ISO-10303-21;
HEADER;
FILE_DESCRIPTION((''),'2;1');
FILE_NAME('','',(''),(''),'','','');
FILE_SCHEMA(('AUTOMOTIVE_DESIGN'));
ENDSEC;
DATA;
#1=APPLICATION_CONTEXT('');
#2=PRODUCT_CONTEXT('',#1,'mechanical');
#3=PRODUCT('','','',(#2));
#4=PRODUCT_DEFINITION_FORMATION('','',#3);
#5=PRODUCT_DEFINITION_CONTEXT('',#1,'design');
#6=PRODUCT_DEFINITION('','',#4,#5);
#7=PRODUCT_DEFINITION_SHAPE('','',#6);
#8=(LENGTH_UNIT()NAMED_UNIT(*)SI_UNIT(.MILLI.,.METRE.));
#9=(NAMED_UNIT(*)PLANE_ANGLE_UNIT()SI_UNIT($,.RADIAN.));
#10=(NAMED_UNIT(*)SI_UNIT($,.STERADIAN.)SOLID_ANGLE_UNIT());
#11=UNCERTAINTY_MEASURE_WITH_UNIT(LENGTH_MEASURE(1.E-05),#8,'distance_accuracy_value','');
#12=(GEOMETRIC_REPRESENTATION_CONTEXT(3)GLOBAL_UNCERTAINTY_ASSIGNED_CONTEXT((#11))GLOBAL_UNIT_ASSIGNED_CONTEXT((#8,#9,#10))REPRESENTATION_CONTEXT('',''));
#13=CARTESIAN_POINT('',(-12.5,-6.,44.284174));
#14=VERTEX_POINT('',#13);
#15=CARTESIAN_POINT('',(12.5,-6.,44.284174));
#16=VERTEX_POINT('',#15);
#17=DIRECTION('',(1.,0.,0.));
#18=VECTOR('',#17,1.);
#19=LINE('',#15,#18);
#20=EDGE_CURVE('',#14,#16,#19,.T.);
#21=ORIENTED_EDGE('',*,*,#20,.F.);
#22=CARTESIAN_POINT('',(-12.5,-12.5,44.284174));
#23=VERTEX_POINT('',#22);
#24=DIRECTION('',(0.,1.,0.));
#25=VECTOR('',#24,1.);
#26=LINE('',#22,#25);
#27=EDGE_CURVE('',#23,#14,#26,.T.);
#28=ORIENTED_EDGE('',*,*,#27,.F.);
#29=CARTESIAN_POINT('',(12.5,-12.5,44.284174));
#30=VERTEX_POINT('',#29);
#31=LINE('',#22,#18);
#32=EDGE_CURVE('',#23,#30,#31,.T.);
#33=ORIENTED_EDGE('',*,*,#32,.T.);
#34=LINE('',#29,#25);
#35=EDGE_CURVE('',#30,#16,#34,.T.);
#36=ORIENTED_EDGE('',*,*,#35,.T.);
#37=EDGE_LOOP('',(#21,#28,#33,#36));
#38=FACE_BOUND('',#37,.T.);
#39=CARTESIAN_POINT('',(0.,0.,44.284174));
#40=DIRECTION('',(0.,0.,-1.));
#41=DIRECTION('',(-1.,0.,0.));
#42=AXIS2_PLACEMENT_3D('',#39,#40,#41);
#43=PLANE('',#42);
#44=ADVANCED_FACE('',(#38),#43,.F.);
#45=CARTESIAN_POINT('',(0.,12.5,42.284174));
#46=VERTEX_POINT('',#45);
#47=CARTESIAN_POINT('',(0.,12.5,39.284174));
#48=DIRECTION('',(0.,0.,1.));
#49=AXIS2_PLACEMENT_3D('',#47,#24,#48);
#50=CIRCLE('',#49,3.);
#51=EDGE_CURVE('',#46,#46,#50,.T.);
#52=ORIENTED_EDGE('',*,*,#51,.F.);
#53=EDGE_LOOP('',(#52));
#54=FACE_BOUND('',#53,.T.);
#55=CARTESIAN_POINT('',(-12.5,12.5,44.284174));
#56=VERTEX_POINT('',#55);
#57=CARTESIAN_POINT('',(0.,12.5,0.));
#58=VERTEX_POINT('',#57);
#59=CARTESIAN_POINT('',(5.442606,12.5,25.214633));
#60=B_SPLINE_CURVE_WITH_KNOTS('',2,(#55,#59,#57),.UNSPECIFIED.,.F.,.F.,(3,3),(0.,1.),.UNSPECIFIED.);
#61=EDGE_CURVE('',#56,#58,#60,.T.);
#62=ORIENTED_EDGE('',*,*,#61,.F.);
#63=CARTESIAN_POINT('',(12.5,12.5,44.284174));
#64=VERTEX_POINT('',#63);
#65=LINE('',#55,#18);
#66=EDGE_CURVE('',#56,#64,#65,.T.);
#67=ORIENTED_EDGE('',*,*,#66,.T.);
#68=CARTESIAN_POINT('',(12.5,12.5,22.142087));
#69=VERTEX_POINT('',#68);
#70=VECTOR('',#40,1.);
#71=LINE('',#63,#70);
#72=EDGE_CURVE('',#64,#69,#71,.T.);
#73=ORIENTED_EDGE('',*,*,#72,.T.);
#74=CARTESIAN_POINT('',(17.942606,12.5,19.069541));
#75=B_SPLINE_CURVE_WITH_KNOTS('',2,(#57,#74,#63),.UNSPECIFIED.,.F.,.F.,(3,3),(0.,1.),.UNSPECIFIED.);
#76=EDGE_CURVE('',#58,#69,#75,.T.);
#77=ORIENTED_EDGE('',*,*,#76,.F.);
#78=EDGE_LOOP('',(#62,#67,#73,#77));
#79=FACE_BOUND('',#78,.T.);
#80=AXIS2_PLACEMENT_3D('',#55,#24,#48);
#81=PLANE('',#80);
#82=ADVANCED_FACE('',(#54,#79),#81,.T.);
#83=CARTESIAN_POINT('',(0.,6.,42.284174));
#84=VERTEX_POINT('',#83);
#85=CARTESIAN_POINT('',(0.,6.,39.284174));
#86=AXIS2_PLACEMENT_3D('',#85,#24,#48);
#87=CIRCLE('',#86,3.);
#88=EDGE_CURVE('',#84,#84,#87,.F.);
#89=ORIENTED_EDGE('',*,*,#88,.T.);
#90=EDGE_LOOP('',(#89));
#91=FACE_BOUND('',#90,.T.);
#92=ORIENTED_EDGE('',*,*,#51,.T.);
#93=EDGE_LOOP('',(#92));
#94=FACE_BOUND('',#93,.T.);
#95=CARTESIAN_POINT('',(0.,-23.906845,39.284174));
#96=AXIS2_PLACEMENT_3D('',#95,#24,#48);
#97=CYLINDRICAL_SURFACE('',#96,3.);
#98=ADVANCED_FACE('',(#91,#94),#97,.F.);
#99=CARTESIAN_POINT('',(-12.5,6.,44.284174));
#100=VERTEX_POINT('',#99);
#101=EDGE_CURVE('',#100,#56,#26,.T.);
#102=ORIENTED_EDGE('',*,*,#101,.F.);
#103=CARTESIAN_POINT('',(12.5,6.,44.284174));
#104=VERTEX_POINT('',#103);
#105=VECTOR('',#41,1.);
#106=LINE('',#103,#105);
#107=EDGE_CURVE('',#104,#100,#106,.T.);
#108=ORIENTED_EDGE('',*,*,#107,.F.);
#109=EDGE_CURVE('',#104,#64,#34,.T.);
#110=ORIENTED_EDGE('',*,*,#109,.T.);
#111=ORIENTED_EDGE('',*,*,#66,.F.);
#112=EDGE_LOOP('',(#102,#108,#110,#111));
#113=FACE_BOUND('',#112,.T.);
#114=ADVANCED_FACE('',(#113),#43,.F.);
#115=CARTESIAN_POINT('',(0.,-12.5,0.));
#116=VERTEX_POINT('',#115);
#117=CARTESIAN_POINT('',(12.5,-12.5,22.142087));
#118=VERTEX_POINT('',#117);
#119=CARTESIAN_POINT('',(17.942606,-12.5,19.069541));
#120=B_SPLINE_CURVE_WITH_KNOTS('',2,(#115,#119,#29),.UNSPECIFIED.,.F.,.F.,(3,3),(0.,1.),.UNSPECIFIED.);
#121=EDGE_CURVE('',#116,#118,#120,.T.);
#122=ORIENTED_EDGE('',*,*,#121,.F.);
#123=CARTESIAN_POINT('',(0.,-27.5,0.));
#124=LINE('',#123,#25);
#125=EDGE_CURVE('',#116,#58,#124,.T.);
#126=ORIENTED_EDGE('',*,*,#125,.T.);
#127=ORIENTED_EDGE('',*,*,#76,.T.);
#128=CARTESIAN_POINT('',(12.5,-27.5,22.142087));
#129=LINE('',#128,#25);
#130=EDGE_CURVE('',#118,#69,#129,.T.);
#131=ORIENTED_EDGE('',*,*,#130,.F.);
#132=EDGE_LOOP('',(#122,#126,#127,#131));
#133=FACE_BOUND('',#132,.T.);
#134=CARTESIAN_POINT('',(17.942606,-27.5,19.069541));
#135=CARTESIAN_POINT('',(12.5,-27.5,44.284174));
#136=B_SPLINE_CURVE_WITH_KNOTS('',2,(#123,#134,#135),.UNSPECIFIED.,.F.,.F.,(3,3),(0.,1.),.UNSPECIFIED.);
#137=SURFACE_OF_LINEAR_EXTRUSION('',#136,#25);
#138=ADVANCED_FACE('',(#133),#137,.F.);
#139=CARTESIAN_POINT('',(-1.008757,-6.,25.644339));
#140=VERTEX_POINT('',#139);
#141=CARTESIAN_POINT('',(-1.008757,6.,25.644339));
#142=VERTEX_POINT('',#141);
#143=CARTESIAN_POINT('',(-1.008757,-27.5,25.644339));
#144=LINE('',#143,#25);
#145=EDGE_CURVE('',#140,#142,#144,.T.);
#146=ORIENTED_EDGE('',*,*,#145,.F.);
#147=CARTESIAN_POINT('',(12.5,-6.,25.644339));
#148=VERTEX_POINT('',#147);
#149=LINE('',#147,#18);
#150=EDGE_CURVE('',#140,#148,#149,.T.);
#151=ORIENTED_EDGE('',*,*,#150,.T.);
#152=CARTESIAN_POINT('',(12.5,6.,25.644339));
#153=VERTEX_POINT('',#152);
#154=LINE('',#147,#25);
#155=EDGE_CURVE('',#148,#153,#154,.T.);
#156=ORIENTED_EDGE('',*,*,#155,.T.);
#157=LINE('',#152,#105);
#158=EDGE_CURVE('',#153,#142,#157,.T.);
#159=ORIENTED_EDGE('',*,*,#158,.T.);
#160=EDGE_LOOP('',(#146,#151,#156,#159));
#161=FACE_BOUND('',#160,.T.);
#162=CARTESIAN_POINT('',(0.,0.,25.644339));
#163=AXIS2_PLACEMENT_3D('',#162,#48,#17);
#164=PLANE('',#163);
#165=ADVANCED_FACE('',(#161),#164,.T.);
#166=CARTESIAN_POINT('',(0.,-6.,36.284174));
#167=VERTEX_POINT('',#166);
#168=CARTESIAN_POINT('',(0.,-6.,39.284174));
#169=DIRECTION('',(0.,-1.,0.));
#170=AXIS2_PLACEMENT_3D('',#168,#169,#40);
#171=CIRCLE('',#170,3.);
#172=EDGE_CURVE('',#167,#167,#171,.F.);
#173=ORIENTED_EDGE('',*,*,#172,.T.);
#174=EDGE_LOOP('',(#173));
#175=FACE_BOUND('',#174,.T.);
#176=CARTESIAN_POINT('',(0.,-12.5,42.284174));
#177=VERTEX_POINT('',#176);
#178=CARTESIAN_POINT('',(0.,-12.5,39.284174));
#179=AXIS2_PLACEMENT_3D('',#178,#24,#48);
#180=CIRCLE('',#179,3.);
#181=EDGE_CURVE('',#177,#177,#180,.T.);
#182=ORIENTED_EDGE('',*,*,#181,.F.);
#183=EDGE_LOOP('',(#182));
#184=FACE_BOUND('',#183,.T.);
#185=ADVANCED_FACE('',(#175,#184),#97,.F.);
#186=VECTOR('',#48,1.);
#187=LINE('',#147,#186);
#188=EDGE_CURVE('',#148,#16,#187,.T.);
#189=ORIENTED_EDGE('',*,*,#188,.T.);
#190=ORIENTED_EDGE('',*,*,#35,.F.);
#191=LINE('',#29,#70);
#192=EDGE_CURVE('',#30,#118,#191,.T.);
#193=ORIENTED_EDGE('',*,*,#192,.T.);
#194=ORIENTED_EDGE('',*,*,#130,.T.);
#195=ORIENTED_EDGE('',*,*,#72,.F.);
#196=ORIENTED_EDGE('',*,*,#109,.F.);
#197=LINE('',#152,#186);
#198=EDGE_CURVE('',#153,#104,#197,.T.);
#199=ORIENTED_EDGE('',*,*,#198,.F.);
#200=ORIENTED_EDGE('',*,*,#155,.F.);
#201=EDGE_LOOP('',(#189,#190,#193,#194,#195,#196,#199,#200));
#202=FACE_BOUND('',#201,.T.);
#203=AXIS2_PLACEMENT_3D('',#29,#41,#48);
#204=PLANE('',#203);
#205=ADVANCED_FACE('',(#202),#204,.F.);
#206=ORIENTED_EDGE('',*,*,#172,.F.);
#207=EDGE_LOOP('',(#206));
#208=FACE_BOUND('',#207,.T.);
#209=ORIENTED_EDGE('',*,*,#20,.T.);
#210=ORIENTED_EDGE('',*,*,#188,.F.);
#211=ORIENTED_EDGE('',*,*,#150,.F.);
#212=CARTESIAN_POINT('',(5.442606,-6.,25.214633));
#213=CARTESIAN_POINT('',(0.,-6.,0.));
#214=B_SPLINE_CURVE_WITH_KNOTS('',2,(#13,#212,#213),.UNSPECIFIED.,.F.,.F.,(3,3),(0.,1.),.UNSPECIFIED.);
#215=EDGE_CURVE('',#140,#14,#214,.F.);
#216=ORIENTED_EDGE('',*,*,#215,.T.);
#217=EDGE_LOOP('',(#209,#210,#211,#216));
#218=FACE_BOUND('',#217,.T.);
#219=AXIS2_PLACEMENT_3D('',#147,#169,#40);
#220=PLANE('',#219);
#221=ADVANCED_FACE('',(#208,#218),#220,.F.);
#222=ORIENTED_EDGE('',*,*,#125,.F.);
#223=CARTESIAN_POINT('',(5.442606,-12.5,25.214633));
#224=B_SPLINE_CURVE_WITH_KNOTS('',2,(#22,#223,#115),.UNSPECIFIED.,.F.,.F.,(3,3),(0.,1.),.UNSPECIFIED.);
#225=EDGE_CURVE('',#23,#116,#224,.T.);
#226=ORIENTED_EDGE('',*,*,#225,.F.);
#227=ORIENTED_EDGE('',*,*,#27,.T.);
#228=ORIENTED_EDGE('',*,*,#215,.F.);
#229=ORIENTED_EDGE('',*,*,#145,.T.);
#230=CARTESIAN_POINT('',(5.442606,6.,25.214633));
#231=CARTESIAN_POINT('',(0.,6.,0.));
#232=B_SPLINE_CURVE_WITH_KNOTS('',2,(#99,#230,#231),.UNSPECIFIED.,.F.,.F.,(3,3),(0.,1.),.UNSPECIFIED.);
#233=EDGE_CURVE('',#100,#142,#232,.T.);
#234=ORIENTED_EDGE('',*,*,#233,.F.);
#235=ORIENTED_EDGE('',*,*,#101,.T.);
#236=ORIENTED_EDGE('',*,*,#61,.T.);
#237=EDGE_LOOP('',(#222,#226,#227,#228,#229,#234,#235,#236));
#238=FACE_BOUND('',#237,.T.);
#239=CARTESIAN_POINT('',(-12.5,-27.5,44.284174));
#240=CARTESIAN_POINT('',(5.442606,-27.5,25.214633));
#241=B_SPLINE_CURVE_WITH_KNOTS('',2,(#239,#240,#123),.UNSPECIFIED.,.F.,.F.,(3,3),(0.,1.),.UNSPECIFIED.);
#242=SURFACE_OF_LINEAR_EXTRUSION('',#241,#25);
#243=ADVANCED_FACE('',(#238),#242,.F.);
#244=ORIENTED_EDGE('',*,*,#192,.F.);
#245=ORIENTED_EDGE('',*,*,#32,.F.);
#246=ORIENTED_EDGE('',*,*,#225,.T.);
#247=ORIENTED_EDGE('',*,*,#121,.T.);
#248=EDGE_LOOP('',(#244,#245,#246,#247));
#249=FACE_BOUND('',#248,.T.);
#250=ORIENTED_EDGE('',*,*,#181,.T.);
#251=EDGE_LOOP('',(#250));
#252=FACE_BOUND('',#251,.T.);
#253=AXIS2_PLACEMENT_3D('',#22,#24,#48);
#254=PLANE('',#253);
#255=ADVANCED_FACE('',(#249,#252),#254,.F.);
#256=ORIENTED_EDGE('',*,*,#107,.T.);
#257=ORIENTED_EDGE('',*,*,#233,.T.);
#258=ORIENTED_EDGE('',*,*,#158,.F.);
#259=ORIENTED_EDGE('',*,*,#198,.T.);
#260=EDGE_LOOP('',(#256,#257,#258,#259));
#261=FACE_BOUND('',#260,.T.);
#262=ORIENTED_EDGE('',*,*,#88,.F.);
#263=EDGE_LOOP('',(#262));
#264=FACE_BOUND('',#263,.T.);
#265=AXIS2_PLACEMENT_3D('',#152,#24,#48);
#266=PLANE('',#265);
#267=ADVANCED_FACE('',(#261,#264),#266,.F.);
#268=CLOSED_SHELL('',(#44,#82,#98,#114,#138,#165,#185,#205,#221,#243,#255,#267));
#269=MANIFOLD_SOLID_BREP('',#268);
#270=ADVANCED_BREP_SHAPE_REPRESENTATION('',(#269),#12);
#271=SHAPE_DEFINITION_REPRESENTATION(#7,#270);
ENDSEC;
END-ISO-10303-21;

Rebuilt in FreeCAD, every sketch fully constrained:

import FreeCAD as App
import Part
import Sketcher

V = App.Vector

doc = App.newDocument("Part")
body = doc.addObject("PartDesign::Body", "Body")

sketch1 = body.newObject("Sketcher::SketchObject", "Sketch")
sketch1.AttachmentSupport = (doc.getObject("XY_Plane"), [""])
sketch1.MapMode = "FlatFace"
sketch1.addGeometry([
    Part.LineSegment(V(-12, 12, 0), V(-12, -12, 0)),
    Part.LineSegment(V(-12, -12, 0), V(12, -12, 0)),
    Part.LineSegment(V(12, -12, 0), V(12, 12, 0)),
    Part.LineSegment(V(12, 12, 0), V(-12, 12, 0)),
], False)
sketch1.addConstraint([
    Sketcher.Constraint("Coincident", 0, 2, 1, 1),
    Sketcher.Constraint("Coincident", 1, 2, 2, 1),
    Sketcher.Constraint("Coincident", 2, 2, 3, 1),
    Sketcher.Constraint("Coincident", 3, 2, 0, 1),
    Sketcher.Constraint("Vertical", 0),
    Sketcher.Constraint("Horizontal", 1),
    Sketcher.Constraint("Vertical", 2),
    Sketcher.Constraint("Horizontal", 3),
    Sketcher.Constraint("Symmetric", 0, 2, 2, 2, -1, 1),
    Sketcher.Constraint("Equal", 3, 0),
    Sketcher.Constraint("DistanceX", 1, 1, 1, 2, 25.0),
])
pad1 = body.newObject("PartDesign::Pad", "Pad")
pad1.Profile = sketch1
pad1.Length = 44.284174

sketch2 = body.newObject("Sketcher::SketchObject", "Sketch001")
sketch2.AttachmentSupport = (doc.getObject("XZ_Plane"), [""])
sketch2.MapMode = "FlatFace"
sketch2.AttachmentOffset = App.Placement(V(0, 0, -12.5), App.Rotation())
sketch2.addGeometry(Part.Circle(V(0, 39.3, 0), V(0, 0, 1), 3), False)
sketch2.addConstraint([
    Sketcher.Constraint("PointOnObject", 0, 3, -2),
    Sketcher.Constraint("Diameter", 0, 6.0),
    Sketcher.Constraint("DistanceY", -1, 1, 0, 3, 39.284174),
])
pocket1 = body.newObject("PartDesign::Pocket", "Pocket")
pocket1.Profile = sketch2
pocket1.Length = 36.406845
pocket1.Reversed = True

sketch3 = body.newObject("Sketcher::SketchObject", "Sketch002")
sketch3.AttachmentSupport = (doc.getObject("XY_Plane"), [""])
sketch3.MapMode = "FlatFace"
sketch3.AttachmentOffset = App.Placement(V(0, 0, 44.284174), App.Rotation())
sketch3.addGeometry([
    Part.LineSegment(V(-12, 6, 0), V(-12, -6, 0)),
    Part.LineSegment(V(-12, -6, 0), V(12, -6, 0)),
    Part.LineSegment(V(12, -6, 0), V(12, 6, 0)),
    Part.LineSegment(V(12, 6, 0), V(-12, 6, 0)),
], False)
sketch3.addConstraint([
    Sketcher.Constraint("Coincident", 0, 2, 1, 1),
    Sketcher.Constraint("Coincident", 1, 2, 2, 1),
    Sketcher.Constraint("Coincident", 2, 2, 3, 1),
    Sketcher.Constraint("Coincident", 3, 2, 0, 1),
    Sketcher.Constraint("Vertical", 0),
    Sketcher.Constraint("Horizontal", 1),
    Sketcher.Constraint("Vertical", 2),
    Sketcher.Constraint("Horizontal", 3),
    Sketcher.Constraint("Symmetric", 0, 2, 2, 2, -1, 1),
    Sketcher.Constraint("DistanceX", 1, 1, 1, 2, 25.0),
    Sketcher.Constraint("DistanceY", 0, 2, 0, 1, 12.0),
])
pocket2 = body.newObject("PartDesign::Pocket", "Pocket001")
pocket2.Profile = sketch3
pocket2.Length = 18.639835

sketch4 = body.newObject("Sketcher::SketchObject", "Sketch003")
sketch4.AttachmentSupport = (doc.getObject("XZ_Plane"), [""])
sketch4.MapMode = "FlatFace"
sketch4.AttachmentOffset = App.Placement(V(0, 0, -12.5), App.Rotation())
sketch4.addGeometry([
    Part.LineSegment(V(5.705393, -41.461874, 0), V(-47.024859, 52.228317, 0)),
    Part.LineSegment(V(-47.024859, 52.228317, 0), V(-12.5, 44.284174, 0)),
    Part.BSplineCurve([V(0, 0, 0), V(5.442606, 25.214633, 0), V(-12.5, 44.284174, 0)], [3, 3], [0, 1], False, 2, [1, 1, 1], False),
    Part.BSplineCurve([V(0, 0, 0), V(17.942606, 19.069541, 0), V(12.5, 44.284174, 0)], [3, 3], [0, 1], False, 2, [1, 1, 1], False),
    Part.LineSegment(V(12.5, 44.284174, 0), V(28.831723, 24.155832, 0)),
    Part.LineSegment(V(28.831723, 24.155832, 0), V(5.705393, -41.461874, 0)),
], False)
sketch4.addConstraint([
    Sketcher.Constraint("Block", 2),
    Sketcher.Constraint("Block", 3),
    Sketcher.Constraint("Coincident", 0, 2, 1, 1),
    Sketcher.Constraint("Coincident", 1, 2, 2, 2),
    Sketcher.Constraint("Coincident", 3, 2, 4, 1),
    Sketcher.Constraint("Coincident", 4, 2, 5, 1),
    Sketcher.Constraint("Coincident", 5, 2, 0, 1),
    Sketcher.Constraint("Distance", 0, 107.50968),
    Sketcher.Constraint("DistanceX", 0, 2, -1, 1, 47.024859),
    Sketcher.Constraint("DistanceY", 4, 2, 1, 2, 20.128341),
    Sketcher.Constraint("DistanceX", 5, 2, 4, 2, 23.12633),
    Sketcher.Constraint("DistanceY", 5, 2, 0, 2, 93.690191),
    Sketcher.Constraint("Distance", 1, 35.427042),
])
pocket3 = body.newObject("PartDesign::Pocket", "Pocket002")
pocket3.Profile = sketch4
pocket3.Length = 40
pocket3.Reversed = True

doc.recompute()
